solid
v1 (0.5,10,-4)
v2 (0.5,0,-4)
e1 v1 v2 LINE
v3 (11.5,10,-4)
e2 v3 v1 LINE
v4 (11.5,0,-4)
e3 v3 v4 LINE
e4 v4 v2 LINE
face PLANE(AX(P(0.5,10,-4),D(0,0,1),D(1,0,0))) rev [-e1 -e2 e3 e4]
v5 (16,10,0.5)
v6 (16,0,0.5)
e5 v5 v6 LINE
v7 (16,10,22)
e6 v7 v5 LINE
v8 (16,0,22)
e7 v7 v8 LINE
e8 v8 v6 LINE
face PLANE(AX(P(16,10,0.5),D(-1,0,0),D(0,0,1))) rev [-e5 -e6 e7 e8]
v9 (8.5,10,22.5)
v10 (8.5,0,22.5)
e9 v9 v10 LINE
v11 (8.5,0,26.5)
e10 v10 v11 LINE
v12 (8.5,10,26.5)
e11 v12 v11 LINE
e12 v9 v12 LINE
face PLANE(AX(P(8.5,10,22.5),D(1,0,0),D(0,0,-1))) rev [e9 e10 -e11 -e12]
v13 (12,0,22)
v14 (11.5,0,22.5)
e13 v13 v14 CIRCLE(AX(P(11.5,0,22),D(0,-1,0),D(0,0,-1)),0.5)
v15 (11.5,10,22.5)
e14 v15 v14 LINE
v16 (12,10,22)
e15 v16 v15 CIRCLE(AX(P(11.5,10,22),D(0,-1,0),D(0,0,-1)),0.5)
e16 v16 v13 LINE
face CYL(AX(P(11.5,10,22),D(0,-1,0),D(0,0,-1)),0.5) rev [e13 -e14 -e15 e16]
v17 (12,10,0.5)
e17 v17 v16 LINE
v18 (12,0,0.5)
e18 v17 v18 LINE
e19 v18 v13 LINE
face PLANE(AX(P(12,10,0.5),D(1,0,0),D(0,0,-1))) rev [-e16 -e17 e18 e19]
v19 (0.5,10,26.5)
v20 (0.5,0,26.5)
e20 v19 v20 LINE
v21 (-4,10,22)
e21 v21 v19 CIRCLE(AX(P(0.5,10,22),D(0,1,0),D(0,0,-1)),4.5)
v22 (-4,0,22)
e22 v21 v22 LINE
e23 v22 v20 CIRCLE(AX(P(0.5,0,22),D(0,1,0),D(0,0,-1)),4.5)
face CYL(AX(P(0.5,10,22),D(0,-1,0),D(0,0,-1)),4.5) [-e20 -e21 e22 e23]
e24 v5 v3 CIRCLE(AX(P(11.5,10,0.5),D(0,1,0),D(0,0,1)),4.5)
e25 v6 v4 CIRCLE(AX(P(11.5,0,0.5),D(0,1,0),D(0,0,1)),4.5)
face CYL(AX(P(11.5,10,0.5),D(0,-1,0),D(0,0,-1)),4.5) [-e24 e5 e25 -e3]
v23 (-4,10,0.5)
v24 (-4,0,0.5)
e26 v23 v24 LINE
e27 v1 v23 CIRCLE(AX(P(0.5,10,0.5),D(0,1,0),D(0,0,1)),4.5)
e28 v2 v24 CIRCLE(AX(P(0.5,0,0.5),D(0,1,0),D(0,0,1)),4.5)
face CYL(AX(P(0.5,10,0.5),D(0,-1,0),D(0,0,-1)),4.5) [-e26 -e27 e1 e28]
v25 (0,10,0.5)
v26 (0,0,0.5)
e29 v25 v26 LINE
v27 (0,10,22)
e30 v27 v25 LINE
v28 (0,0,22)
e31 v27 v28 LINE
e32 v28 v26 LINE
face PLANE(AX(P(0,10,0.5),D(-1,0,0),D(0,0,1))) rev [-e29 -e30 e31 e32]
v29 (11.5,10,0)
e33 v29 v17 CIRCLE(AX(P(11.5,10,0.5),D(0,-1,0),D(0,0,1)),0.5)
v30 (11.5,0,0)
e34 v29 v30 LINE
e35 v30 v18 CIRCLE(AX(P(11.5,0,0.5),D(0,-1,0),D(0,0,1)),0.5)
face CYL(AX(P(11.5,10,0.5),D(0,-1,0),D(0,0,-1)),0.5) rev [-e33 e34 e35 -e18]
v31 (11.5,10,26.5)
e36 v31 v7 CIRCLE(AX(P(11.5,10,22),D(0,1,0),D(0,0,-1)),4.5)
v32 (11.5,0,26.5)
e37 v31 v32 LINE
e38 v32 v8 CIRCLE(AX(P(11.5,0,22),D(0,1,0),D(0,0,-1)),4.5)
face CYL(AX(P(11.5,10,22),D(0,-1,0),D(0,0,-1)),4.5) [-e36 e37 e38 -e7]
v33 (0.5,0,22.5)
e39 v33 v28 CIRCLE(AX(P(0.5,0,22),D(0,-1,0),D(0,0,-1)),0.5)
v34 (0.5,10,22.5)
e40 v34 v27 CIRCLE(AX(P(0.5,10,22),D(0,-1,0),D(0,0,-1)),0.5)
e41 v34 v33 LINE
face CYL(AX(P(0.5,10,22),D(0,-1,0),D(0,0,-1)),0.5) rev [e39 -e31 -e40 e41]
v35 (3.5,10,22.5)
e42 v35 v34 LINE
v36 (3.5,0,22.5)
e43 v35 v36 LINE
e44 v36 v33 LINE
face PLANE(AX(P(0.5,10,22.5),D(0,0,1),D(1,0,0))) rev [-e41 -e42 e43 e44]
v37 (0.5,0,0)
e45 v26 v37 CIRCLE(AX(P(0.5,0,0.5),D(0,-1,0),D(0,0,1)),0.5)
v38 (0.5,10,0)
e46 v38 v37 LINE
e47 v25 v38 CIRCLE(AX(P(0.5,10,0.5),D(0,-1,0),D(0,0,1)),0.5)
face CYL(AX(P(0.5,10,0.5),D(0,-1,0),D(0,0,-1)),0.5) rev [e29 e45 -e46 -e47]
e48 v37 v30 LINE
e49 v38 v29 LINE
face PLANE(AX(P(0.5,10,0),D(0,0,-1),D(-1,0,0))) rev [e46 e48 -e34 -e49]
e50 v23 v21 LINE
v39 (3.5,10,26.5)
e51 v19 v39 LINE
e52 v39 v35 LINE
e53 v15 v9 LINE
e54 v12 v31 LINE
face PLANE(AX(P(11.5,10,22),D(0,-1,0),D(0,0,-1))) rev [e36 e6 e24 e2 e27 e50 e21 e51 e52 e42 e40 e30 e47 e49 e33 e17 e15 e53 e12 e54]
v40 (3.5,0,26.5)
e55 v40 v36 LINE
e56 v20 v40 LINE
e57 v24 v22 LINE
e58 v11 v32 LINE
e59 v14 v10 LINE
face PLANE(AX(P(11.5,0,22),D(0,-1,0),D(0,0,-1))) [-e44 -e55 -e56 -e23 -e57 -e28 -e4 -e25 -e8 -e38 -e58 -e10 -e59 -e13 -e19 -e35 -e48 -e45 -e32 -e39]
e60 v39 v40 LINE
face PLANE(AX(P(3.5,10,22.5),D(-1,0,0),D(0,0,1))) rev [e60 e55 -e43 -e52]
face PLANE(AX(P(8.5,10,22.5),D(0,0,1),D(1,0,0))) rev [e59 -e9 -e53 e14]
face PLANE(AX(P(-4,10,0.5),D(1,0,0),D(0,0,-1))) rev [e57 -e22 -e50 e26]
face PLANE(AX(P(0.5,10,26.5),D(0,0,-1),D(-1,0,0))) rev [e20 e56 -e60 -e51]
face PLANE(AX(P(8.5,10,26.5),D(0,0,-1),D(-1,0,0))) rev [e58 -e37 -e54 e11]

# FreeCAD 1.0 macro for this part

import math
import FreeCAD as App
import Part
import Sketcher
from FreeCAD import Vector

doc = App.newDocument("Part")
body = doc.addObject("PartDesign::Body", "Body")

sketch1 = body.newObject("Sketcher::SketchObject", "Sketch")
sketch1.AttachmentSupport = (doc.getObject("XZ_Plane"), [""])
sketch1.MapMode = "FlatFace"
sketch1.addGeometry([
    Part.LineSegment(Vector(-4, 0.5, 0), Vector(-4, 22, 0)),
    Part.ArcOfCircle(Part.Circle(Vector(0.5, 22, 0), Vector(0, 0, 1), 4.5), math.radians(90), math.radians(180)),
    Part.LineSegment(Vector(0.5, 26.5, 0), Vector(3.5, 26.5, 0)),
    Part.LineSegment(Vector(3.5, 26.5, 0), Vector(3.5, 22.5, 0)),
    Part.LineSegment(Vector(3.5, 22.5, 0), Vector(0.5, 22.5, 0)),
    Part.ArcOfCircle(Part.Circle(Vector(0.5, 22, 0), Vector(0, 0, 1), 0.5), math.radians(90), math.radians(180)),
    Part.LineSegment(Vector(0, 22, 0), Vector(0, 0.5, 0)),
    Part.ArcOfCircle(Part.Circle(Vector(0.5, 0.5, 0), Vector(0, 0, 1), 0.5), math.radians(180), math.radians(270)),
    Part.LineSegment(Vector(0.5, 0, 0), Vector(11.5, 0, 0)),
    Part.ArcOfCircle(Part.Circle(Vector(11.5, 0.5, 0), Vector(0, 0, 1), 0.5), math.radians(-90), math.radians(0)),
    Part.LineSegment(Vector(12, 0.5, 0), Vector(12, 22, 0)),
    Part.ArcOfCircle(Part.Circle(Vector(11.5, 22, 0), Vector(0, 0, 1), 0.5), math.radians(0), math.radians(90)),
    Part.LineSegment(Vector(11.5, 22.5, 0), Vector(8.5, 22.5, 0)),
    Part.LineSegment(Vector(8.5, 22.5, 0), Vector(8.5, 26.5, 0)),
    Part.LineSegment(Vector(8.5, 26.5, 0), Vector(11.5, 26.5, 0)),
    Part.ArcOfCircle(Part.Circle(Vector(11.5, 22, 0), Vector(0, 0, 1), 4.5), math.radians(0), math.radians(90)),
    Part.LineSegment(Vector(16, 22, 0), Vector(16, 0.5, 0)),
    Part.ArcOfCircle(Part.Circle(Vector(11.5, 0.5, 0), Vector(0, 0, 1), 4.5), math.radians(-90), math.radians(0)),
    Part.LineSegment(Vector(11.5, -4, 0), Vector(0.5, -4, 0)),
    Part.ArcOfCircle(Part.Circle(Vector(0.5, 0.5, 0), Vector(0, 0, 1), 4.5), math.radians(-180), math.radians(-90)),
], False)
sketch1.addConstraint([
    Sketcher.Constraint("Tangent", 0, 2, 1, 2),
    Sketcher.Constraint("Tangent", 1, 1, 2, 1),
    Sketcher.Constraint("Coincident", 2, 2, 3, 1),
    Sketcher.Constraint("Coincident", 3, 2, 4, 1),
    Sketcher.Constraint("Tangent", 4, 2, 5, 1),
    Sketcher.Constraint("Tangent", 5, 2, 6, 1),
    Sketcher.Constraint("Tangent", 6, 2, 7, 1),
    Sketcher.Constraint("Tangent", 7, 2, 8, 1),
    Sketcher.Constraint("Tangent", 8, 2, 9, 1),
    Sketcher.Constraint("Tangent", 9, 2, 10, 1),
    Sketcher.Constraint("Tangent", 10, 2, 11, 1),
    Sketcher.Constraint("Tangent", 11, 2, 12, 1),
    Sketcher.Constraint("Coincident", 12, 2, 13, 1),
    Sketcher.Constraint("Coincident", 13, 2, 14, 1),
    Sketcher.Constraint("Tangent", 14, 2, 15, 2),
    Sketcher.Constraint("Tangent", 15, 1, 16, 1),
    Sketcher.Constraint("Tangent", 16, 2, 17, 2),
    Sketcher.Constraint("Tangent", 17, 1, 18, 1),
    Sketcher.Constraint("Tangent", 18, 2, 19, 2),
    Sketcher.Constraint("Tangent", 19, 1, 0, 1),
    Sketcher.Constraint("Vertical", 0),
    Sketcher.Constraint("Horizontal", 2),
    Sketcher.Constraint("Vertical", 3),
    Sketcher.Constraint("Horizontal", 4),
    Sketcher.Constraint("Vertical", 6),
    Sketcher.Constraint("Horizontal", 8),
    Sketcher.Constraint("Vertical", 10),
    Sketcher.Constraint("Horizontal", 12),
    Sketcher.Constraint("Vertical", 13),
    Sketcher.Constraint("Horizontal", 14),
    Sketcher.Constraint("Vertical", 16),
    Sketcher.Constraint("Horizontal", 18),
    Sketcher.Constraint("Coincident", 5, 3, 1, 3),
    Sketcher.Constraint("Coincident", 15, 3, 11, 3),
    Sketcher.Constraint("Coincident", 17, 3, 9, 3),
    Sketcher.Constraint("Coincident", 19, 3, 7, 3),
    Sketcher.Constraint("Equal", 5, 7),
    Sketcher.Constraint("Equal", 7, 9),
    Sketcher.Constraint("Equal", 9, 11),
    Sketcher.Constraint("PointOnObject", 5, 2, -2),
    Sketcher.Constraint("PointOnObject", 7, 2, -1),
    Sketcher.Constraint("Horizontal", 5, 3, 11, 3),
    Sketcher.Constraint("Equal", 4, 12),
    Sketcher.Constraint("Radius", 1, 4.5),
    Sketcher.Constraint("Radius", 5, 0.5),
    Sketcher.Constraint("DistanceX", 2, 1, 2, 2, 3.0),
    Sketcher.Constraint("DistanceX", 8, 1, 8, 2, 11.0),
    Sketcher.Constraint("DistanceY", 0, 1, 0, 2, 21.5),
])
pad1 = body.newObject("PartDesign::Pad", "Pad")
pad1.Profile = sketch1
pad1.Length = 10
pad1.Reversed = True

doc.recompute()
